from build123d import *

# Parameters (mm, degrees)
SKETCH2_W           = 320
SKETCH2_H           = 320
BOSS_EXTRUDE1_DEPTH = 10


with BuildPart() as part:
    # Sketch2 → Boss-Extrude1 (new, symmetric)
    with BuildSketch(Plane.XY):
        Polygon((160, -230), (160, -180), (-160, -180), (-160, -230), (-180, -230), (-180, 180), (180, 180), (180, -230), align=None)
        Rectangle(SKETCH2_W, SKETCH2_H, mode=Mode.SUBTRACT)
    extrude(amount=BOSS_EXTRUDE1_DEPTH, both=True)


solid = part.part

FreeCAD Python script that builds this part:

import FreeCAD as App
import Part
import Sketcher
from FreeCAD import Vector

doc = App.newDocument("Part")
body = doc.addObject("PartDesign::Body", "Body")

# Sketch on XY plane
sketch1 = body.newObject("Sketcher::SketchObject", "Sketch")
sketch1.AttachmentSupport = (doc.getObject("XY_Plane"), [""])
sketch1.MapMode = "FlatFace"
sketch1.addGeometry(Part.LineSegment(Vector(160, -180, 0), Vector(160, -230, 0)), False)
sketch1.addGeometry(Part.LineSegment(Vector(160, -230, 0), Vector(180, -230, 0)), False)
sketch1.addGeometry(Part.LineSegment(Vector(180, -230, 0), Vector(180, 180, 0)), False)
sketch1.addGeometry(Part.LineSegment(Vector(180, 180, 0), Vector(-180, 180, 0)), False)
sketch1.addGeometry(Part.LineSegment(Vector(-180, 180, 0), Vector(-180, -230, 0)), False)
sketch1.addGeometry(Part.LineSegment(Vector(-180, -230, 0), Vector(-160, -230, 0)), False)
sketch1.addGeometry(Part.LineSegment(Vector(-160, -230, 0), Vector(-160, -180, 0)), False)
sketch1.addGeometry(Part.LineSegment(Vector(-160, -180, 0), Vector(160, -180, 0)), False)
sketch1.addGeometry(Part.LineSegment(Vector(-160, -160, 0), Vector(-160, 160, 0)), False)
sketch1.addGeometry(Part.LineSegment(Vector(-160, 160, 0), Vector(160, 160, 0)), False)
sketch1.addGeometry(Part.LineSegment(Vector(160, 160, 0), Vector(160, -160, 0)), False)
sketch1.addGeometry(Part.LineSegment(Vector(160, -160, 0), Vector(-160, -160, 0)), False)
sketch1.addConstraint(Sketcher.Constraint("Coincident", 0, 2, 1, 1))
sketch1.addConstraint(Sketcher.Constraint("Coincident", 1, 2, 2, 1))
sketch1.addConstraint(Sketcher.Constraint("Coincident", 2, 2, 3, 1))
sketch1.addConstraint(Sketcher.Constraint("Coincident", 3, 2, 4, 1))
sketch1.addConstraint(Sketcher.Constraint("Coincident", 4, 2, 5, 1))
sketch1.addConstraint(Sketcher.Constraint("Coincident", 5, 2, 6, 1))
sketch1.addConstraint(Sketcher.Constraint("Coincident", 6, 2, 7, 1))
sketch1.addConstraint(Sketcher.Constraint("Coincident", 7, 2, 0, 1))
sketch1.addConstraint(Sketcher.Constraint("Coincident", 8, 2, 9, 1))
sketch1.addConstraint(Sketcher.Constraint("Coincident", 9, 2, 10, 1))
sketch1.addConstraint(Sketcher.Constraint("Coincident", 10, 2, 11, 1))
sketch1.addConstraint(Sketcher.Constraint("Coincident", 11, 2, 8, 1))
sketch1.addConstraint(Sketcher.Constraint("Vertical", 0))
sketch1.addConstraint(Sketcher.Constraint("Horizontal", 1))
sketch1.addConstraint(Sketcher.Constraint("Vertical", 2))
sketch1.addConstraint(Sketcher.Constraint("Horizontal", 3))
sketch1.addConstraint(Sketcher.Constraint("Vertical", 4))
sketch1.addConstraint(Sketcher.Constraint("Horizontal", 5))
sketch1.addConstraint(Sketcher.Constraint("Vertical", 6))
sketch1.addConstraint(Sketcher.Constraint("Horizontal", 7))
sketch1.addConstraint(Sketcher.Constraint("Vertical", 8))
sketch1.addConstraint(Sketcher.Constraint("Horizontal", 9))
sketch1.addConstraint(Sketcher.Constraint("Vertical", 10))
sketch1.addConstraint(Sketcher.Constraint("Horizontal", 11))
sketch1.addConstraint(Sketcher.Constraint("Symmetric", 8, 2, 10, 2, -1, 1))
sketch1.addConstraint(Sketcher.Constraint("Symmetric", 1, 2, 4, 2, -2))
sketch1.addConstraint(Sketcher.Constraint("Vertical", 6, 2, 8, 2))
sketch1.addConstraint(Sketcher.Constraint("Vertical", 7, 2, 9, 2))
sketch1.addConstraint(Sketcher.Constraint("Equal", 11, 8))
sketch1.addConstraint(Sketcher.Constraint("DistanceX", 1, 1, 1, 2, 20.0))
sketch1.addConstraint(Sketcher.Constraint("DistanceX", 3, 2, 3, 1, 360.0))
sketch1.addConstraint(Sketcher.Constraint("DistanceY", 0, 2, 0, 1, 50.0))
sketch1.addConstraint(Sketcher.Constraint("DistanceY", 2, 1, 2, 2, 410.0))
sketch1.addConstraint(Sketcher.Constraint("DistanceY", 0, 2, -1, 1, 230.0))
pad1 = body.newObject("PartDesign::Pad", "Pad")
pad1.Profile = sketch1
pad1.Length = 20
pad1.Midplane = True

doc.recompute()
